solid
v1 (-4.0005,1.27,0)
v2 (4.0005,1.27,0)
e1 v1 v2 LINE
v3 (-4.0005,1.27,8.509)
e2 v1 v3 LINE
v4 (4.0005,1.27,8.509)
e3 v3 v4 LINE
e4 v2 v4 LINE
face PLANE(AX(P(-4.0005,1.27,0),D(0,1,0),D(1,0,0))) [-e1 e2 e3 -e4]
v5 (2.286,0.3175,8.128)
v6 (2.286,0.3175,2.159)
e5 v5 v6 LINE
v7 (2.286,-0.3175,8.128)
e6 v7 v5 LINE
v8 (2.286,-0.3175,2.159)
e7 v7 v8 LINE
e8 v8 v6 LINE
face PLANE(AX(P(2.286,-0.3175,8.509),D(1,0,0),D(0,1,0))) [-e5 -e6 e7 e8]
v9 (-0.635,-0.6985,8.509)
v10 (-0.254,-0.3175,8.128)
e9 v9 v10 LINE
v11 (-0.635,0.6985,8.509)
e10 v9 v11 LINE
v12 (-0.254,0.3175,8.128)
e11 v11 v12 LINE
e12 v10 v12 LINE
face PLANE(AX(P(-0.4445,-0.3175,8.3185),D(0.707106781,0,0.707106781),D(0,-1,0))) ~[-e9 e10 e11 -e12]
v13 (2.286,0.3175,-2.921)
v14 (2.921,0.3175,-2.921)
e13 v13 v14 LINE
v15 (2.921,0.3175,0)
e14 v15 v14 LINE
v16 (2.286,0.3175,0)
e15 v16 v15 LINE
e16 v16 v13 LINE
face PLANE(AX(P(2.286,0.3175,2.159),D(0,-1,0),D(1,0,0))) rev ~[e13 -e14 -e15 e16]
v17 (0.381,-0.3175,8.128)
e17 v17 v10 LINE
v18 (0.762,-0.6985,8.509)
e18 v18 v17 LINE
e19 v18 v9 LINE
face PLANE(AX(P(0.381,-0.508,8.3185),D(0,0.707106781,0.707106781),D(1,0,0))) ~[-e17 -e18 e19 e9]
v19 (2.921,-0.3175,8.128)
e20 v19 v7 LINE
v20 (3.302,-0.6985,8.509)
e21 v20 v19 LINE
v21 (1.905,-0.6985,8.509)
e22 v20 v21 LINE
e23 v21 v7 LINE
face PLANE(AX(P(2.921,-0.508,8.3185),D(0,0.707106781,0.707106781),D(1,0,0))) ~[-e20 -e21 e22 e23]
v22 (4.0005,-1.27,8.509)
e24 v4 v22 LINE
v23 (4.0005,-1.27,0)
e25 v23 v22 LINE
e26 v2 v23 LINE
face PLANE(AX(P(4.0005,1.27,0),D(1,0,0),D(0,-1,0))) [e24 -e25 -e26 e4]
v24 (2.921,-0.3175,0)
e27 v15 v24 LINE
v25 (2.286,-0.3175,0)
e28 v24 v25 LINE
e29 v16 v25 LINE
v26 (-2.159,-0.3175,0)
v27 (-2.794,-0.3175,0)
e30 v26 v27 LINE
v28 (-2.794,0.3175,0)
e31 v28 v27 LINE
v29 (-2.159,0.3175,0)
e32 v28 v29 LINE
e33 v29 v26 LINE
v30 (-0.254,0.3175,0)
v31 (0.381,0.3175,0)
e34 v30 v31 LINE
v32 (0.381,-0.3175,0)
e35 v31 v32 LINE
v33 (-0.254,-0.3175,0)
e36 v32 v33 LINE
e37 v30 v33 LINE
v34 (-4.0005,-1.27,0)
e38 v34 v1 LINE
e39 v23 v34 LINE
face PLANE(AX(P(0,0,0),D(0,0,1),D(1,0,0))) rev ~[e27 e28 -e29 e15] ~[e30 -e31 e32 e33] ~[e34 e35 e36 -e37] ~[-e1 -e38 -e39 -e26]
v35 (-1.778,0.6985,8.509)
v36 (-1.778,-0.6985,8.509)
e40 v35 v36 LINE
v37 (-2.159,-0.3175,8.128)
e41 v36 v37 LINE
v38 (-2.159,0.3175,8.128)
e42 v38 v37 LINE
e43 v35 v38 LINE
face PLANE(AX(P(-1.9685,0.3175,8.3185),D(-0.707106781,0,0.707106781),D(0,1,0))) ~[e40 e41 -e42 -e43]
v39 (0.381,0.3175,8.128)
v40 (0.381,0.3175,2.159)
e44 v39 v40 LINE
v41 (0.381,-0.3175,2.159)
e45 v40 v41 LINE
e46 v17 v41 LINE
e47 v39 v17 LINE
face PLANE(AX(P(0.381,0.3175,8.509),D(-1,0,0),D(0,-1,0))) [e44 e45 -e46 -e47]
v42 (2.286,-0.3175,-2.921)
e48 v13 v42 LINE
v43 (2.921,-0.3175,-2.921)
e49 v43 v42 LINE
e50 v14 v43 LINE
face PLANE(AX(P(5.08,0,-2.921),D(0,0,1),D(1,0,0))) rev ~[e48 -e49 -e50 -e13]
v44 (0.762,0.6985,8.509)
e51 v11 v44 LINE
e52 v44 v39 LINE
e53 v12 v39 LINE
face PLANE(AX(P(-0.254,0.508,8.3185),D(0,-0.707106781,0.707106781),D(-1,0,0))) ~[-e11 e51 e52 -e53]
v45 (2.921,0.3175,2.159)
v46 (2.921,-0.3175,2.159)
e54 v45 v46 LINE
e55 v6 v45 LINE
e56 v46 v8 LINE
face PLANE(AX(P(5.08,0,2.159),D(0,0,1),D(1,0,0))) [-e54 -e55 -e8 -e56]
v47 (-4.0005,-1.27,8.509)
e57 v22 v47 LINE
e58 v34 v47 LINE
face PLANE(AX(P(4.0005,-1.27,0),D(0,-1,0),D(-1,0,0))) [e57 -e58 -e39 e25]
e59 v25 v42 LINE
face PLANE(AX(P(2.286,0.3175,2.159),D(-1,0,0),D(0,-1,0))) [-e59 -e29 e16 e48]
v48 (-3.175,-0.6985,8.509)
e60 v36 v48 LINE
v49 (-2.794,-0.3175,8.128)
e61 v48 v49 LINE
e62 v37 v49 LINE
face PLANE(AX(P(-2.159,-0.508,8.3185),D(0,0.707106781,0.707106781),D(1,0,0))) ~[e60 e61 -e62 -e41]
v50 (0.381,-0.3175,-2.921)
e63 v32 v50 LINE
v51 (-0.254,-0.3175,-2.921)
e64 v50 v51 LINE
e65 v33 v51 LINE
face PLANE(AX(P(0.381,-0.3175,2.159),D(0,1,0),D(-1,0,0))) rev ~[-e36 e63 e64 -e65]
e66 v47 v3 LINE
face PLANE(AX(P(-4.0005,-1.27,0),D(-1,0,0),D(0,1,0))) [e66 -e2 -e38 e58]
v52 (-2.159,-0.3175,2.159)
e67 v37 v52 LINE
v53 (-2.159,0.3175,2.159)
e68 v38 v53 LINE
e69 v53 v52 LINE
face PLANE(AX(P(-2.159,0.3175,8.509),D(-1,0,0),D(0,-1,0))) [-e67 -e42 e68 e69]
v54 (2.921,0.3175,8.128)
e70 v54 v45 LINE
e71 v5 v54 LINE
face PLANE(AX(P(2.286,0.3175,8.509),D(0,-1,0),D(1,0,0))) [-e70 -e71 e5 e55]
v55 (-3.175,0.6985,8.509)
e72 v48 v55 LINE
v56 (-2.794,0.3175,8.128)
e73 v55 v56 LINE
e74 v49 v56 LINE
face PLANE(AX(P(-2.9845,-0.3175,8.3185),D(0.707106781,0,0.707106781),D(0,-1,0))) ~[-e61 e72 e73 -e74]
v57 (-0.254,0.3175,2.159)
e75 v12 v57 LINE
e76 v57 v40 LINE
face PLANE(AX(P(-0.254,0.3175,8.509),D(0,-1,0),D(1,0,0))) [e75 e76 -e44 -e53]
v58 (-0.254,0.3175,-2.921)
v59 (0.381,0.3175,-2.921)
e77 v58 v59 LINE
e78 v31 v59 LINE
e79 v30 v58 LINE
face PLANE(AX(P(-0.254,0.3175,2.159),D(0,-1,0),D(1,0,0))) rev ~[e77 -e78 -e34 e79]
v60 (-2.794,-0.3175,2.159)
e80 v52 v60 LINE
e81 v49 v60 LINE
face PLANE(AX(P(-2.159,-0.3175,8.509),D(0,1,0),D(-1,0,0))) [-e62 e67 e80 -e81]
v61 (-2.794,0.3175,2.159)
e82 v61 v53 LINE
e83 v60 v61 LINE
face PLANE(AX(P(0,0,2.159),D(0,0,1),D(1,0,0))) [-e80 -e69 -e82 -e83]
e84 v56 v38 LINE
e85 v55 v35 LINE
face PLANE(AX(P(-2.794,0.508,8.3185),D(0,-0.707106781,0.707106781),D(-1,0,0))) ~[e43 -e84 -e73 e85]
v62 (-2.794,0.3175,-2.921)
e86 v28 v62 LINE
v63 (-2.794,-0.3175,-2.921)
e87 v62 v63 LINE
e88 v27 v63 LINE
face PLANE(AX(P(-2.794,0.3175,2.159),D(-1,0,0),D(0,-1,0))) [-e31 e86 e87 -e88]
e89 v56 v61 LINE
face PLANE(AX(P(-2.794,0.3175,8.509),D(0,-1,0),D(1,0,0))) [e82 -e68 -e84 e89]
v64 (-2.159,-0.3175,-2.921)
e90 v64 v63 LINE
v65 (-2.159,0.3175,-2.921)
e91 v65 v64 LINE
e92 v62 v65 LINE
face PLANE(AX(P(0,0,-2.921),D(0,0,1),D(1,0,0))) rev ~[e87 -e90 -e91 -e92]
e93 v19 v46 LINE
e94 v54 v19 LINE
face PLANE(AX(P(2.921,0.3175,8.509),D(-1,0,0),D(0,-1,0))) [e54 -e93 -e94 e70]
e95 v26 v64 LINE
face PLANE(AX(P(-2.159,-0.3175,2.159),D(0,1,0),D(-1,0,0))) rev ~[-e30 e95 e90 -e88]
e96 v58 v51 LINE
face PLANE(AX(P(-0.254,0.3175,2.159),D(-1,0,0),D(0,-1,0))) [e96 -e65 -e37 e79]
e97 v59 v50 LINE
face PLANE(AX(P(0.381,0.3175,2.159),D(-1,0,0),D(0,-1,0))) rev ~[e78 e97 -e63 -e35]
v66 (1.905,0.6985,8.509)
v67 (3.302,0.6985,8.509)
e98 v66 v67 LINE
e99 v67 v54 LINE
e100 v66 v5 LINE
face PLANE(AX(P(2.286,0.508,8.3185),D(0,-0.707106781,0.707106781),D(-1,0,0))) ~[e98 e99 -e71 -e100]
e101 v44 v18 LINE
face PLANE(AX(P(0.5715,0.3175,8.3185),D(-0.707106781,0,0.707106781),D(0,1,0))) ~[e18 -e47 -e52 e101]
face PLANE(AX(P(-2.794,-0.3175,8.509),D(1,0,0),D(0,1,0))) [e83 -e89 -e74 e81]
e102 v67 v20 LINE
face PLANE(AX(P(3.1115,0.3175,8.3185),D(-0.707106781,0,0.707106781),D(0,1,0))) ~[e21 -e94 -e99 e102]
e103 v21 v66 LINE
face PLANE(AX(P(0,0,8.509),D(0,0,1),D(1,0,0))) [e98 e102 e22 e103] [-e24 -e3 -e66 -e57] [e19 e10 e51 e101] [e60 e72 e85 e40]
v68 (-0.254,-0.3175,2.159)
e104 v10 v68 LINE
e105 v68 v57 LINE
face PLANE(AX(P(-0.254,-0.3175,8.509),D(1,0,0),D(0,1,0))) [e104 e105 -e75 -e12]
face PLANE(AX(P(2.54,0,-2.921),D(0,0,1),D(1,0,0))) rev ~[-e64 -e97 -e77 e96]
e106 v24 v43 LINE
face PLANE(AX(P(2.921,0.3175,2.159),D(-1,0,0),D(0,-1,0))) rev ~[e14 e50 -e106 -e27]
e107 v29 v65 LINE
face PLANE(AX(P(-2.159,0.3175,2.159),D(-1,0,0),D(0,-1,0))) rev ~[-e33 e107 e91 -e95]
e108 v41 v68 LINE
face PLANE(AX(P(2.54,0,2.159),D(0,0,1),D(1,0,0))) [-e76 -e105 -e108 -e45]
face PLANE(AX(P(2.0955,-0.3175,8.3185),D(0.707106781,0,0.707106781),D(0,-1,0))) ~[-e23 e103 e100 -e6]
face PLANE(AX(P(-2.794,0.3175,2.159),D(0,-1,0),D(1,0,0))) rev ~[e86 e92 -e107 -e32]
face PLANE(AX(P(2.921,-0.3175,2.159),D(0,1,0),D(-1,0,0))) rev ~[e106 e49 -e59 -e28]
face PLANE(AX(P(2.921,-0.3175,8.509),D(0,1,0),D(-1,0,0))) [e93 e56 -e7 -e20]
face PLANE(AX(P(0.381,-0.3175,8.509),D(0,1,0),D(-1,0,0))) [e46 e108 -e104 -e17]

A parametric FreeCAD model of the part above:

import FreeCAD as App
import Part
import Sketcher

V = App.Vector
Q = App.Units.Quantity


def edges_at(feature, points):
    """Names of the edges that pass closest to the given points."""
    edges = feature.Shape.Edges
    near = lambda p: min(range(len(edges)), key=lambda i: edges[i].distToShape(Part.Vertex(*p))[0])
    return sorted({f"Edge{near(p) + 1}" for p in points})


def add_polygon(sketch, points):
    """Adds a closed chain of lines whose ends are joined by coincident constraints."""
    first, n = sketch.GeometryCount, len(points)
    for a, b in zip(points, points[1:] + points[:1]):
        sketch.addGeometry(Part.LineSegment(App.Vector(*a, 0), App.Vector(*b, 0)), False)
    for i in range(n):
        sketch.addConstraint(Sketcher.Constraint("Coincident", first + i, 2, first + (i + 1) % n, 1))

doc = App.newDocument("Part")
body = doc.addObject("PartDesign::Body", "Body")

# Sketch on XY plane
sketch1 = doc.addObject("Sketcher::SketchObject", "Sketch")
body.addObject(sketch1)
sketch1.AttachmentSupport = (doc.XY_Plane, [""])
sketch1.MapMode = "FlatFace"
add_polygon(sketch1, [(4.0005, 1.27), (-4.0005, 1.27), (-4.0005, -1.27), (4.0005, -1.27)])  # lines 0-3
sketch1.addConstraint(Sketcher.Constraint("Horizontal", 0))
sketch1.addConstraint(Sketcher.Constraint("Vertical", 1))
sketch1.addConstraint(Sketcher.Constraint("Horizontal", 2))
sketch1.addConstraint(Sketcher.Constraint("Vertical", 3))
sketch1.addConstraint(Sketcher.Constraint("Symmetric", 0, 2, 2, 2, -1, 1))
sketch1.addConstraint(Sketcher.Constraint("DistanceY", 1, 2, 1, 1, Q("0.1 in")))
sketch1.addConstraint(Sketcher.Constraint("DistanceX", 0, 2, 0, 1, Q("0.315 in")))
pad1 = doc.addObject("PartDesign::Pad", "Pad")
body.addObject(pad1)
pad1.Profile = sketch1
pad1.Length = Q("0.335 in")

# Sketch on XY plane
sketch2 = doc.addObject("Sketcher::SketchObject", "Sketch001")
body.addObject(sketch2)
sketch2.AttachmentSupport = (doc.XY_Plane, [""])
sketch2.MapMode = "FlatFace"
sketch2.AttachmentOffset = App.Placement(V(0, 0, 0.335 * 25.4), App.Rotation())
add_polygon(sketch2, [(-2.159, 0.3175), (-2.794, 0.3175), (-2.794, -0.3175), (-2.159, -0.3175)])  # lines 0-3
sketch2.addConstraint(Sketcher.Constraint("Horizontal", 0))
sketch2.addConstraint(Sketcher.Constraint("Vertical", 1))
sketch2.addConstraint(Sketcher.Constraint("Horizontal", 2))
sketch2.addConstraint(Sketcher.Constraint("Vertical", 3))
sketch2.addConstraint(Sketcher.Constraint("Equal", 2, 1))
sketch2.addConstraint(Sketcher.Constraint("DistanceX", 0, 2, 0, 1, Q("0.025 in")))
sketch2.addConstraint(Sketcher.Constraint("DistanceX", 0, 2, -1, 1, Q("0.11 in")))
sketch2.addConstraint(Sketcher.Constraint("DistanceY", -1, 1, 0, 2, Q("0.0125 in")))
pocket1 = doc.addObject("PartDesign::Pocket", "Pocket")
body.addObject(pocket1)
pocket1.Profile = sketch2
pocket1.Length = Q("0.25 in")
doc.recompute()

chamfer = doc.addObject("PartDesign::Chamfer", "Chamfer")
body.addObject(chamfer)
chamfer.Base = (pocket1, edges_at(pocket1, [
    (-2.477, 0.318, 8.509),
    (-2.159, 0, 8.509),
    (-2.477, -0.318, 8.509),
    (-2.794, 0, 8.509),
]))
chamfer.Size = Q("0.015 in")

# Sketch on XY plane
sketch3 = doc.addObject("Sketcher::SketchObject", "Sketch002")
body.addObject(sketch3)
sketch3.AttachmentSupport = (doc.XY_Plane, [""])
sketch3.MapMode = "FlatFace"
sketch3.AttachmentOffset = App.Placement(V(0, 0, 0.085 * 25.4), App.Rotation())
add_polygon(sketch3, [(-2.159, 0.3175), (-2.794, 0.3175), (-2.794, -0.3175), (-2.159, -0.3175)])  # lines 0-3
sketch3.addConstraint(Sketcher.Constraint("Horizontal", 0))
sketch3.addConstraint(Sketcher.Constraint("Vertical", 1))
sketch3.addConstraint(Sketcher.Constraint("Horizontal", 2))
sketch3.addConstraint(Sketcher.Constraint("Vertical", 3))
sketch3.addConstraint(Sketcher.Constraint("Equal", 2, 1))
sketch3.addConstraint(Sketcher.Constraint("DistanceX", 0, 2, 0, 1, Q("0.025 in")))
sketch3.addConstraint(Sketcher.Constraint("DistanceX", 0, 2, -1, 1, Q("0.11 in")))
sketch3.addConstraint(Sketcher.Constraint("DistanceY", -1, 1, 0, 2, Q("0.0125 in")))
pad2 = doc.addObject("PartDesign::Pad", "Pad001")
body.addObject(pad2)
pad2.Profile = sketch3
pad2.Length = Q("0.2 in")
pad2.Reversed = True
doc.recompute()

linearpattern = doc.addObject("PartDesign::LinearPattern", "LinearPattern")
body.addObject(linearpattern)
linearpattern.Originals = [pocket1, chamfer]
linearpattern.Direction = (doc.X_Axis, [""])
linearpattern.Mode = "offset"
linearpattern.Offset = Q("0.1 in")
linearpattern.Occurrences = 3
body.Tip = linearpattern
doc.recompute()

linearpattern2 = doc.addObject("PartDesign::LinearPattern", "LinearPattern001")
body.addObject(linearpattern2)
linearpattern2.Originals = [pad2]
linearpattern2.Direction = (doc.X_Axis, [""])
linearpattern2.Mode = "offset"
linearpattern2.Offset = Q("0.1 in")
linearpattern2.Occurrences = 3
body.Tip = linearpattern2

doc.recompute()
